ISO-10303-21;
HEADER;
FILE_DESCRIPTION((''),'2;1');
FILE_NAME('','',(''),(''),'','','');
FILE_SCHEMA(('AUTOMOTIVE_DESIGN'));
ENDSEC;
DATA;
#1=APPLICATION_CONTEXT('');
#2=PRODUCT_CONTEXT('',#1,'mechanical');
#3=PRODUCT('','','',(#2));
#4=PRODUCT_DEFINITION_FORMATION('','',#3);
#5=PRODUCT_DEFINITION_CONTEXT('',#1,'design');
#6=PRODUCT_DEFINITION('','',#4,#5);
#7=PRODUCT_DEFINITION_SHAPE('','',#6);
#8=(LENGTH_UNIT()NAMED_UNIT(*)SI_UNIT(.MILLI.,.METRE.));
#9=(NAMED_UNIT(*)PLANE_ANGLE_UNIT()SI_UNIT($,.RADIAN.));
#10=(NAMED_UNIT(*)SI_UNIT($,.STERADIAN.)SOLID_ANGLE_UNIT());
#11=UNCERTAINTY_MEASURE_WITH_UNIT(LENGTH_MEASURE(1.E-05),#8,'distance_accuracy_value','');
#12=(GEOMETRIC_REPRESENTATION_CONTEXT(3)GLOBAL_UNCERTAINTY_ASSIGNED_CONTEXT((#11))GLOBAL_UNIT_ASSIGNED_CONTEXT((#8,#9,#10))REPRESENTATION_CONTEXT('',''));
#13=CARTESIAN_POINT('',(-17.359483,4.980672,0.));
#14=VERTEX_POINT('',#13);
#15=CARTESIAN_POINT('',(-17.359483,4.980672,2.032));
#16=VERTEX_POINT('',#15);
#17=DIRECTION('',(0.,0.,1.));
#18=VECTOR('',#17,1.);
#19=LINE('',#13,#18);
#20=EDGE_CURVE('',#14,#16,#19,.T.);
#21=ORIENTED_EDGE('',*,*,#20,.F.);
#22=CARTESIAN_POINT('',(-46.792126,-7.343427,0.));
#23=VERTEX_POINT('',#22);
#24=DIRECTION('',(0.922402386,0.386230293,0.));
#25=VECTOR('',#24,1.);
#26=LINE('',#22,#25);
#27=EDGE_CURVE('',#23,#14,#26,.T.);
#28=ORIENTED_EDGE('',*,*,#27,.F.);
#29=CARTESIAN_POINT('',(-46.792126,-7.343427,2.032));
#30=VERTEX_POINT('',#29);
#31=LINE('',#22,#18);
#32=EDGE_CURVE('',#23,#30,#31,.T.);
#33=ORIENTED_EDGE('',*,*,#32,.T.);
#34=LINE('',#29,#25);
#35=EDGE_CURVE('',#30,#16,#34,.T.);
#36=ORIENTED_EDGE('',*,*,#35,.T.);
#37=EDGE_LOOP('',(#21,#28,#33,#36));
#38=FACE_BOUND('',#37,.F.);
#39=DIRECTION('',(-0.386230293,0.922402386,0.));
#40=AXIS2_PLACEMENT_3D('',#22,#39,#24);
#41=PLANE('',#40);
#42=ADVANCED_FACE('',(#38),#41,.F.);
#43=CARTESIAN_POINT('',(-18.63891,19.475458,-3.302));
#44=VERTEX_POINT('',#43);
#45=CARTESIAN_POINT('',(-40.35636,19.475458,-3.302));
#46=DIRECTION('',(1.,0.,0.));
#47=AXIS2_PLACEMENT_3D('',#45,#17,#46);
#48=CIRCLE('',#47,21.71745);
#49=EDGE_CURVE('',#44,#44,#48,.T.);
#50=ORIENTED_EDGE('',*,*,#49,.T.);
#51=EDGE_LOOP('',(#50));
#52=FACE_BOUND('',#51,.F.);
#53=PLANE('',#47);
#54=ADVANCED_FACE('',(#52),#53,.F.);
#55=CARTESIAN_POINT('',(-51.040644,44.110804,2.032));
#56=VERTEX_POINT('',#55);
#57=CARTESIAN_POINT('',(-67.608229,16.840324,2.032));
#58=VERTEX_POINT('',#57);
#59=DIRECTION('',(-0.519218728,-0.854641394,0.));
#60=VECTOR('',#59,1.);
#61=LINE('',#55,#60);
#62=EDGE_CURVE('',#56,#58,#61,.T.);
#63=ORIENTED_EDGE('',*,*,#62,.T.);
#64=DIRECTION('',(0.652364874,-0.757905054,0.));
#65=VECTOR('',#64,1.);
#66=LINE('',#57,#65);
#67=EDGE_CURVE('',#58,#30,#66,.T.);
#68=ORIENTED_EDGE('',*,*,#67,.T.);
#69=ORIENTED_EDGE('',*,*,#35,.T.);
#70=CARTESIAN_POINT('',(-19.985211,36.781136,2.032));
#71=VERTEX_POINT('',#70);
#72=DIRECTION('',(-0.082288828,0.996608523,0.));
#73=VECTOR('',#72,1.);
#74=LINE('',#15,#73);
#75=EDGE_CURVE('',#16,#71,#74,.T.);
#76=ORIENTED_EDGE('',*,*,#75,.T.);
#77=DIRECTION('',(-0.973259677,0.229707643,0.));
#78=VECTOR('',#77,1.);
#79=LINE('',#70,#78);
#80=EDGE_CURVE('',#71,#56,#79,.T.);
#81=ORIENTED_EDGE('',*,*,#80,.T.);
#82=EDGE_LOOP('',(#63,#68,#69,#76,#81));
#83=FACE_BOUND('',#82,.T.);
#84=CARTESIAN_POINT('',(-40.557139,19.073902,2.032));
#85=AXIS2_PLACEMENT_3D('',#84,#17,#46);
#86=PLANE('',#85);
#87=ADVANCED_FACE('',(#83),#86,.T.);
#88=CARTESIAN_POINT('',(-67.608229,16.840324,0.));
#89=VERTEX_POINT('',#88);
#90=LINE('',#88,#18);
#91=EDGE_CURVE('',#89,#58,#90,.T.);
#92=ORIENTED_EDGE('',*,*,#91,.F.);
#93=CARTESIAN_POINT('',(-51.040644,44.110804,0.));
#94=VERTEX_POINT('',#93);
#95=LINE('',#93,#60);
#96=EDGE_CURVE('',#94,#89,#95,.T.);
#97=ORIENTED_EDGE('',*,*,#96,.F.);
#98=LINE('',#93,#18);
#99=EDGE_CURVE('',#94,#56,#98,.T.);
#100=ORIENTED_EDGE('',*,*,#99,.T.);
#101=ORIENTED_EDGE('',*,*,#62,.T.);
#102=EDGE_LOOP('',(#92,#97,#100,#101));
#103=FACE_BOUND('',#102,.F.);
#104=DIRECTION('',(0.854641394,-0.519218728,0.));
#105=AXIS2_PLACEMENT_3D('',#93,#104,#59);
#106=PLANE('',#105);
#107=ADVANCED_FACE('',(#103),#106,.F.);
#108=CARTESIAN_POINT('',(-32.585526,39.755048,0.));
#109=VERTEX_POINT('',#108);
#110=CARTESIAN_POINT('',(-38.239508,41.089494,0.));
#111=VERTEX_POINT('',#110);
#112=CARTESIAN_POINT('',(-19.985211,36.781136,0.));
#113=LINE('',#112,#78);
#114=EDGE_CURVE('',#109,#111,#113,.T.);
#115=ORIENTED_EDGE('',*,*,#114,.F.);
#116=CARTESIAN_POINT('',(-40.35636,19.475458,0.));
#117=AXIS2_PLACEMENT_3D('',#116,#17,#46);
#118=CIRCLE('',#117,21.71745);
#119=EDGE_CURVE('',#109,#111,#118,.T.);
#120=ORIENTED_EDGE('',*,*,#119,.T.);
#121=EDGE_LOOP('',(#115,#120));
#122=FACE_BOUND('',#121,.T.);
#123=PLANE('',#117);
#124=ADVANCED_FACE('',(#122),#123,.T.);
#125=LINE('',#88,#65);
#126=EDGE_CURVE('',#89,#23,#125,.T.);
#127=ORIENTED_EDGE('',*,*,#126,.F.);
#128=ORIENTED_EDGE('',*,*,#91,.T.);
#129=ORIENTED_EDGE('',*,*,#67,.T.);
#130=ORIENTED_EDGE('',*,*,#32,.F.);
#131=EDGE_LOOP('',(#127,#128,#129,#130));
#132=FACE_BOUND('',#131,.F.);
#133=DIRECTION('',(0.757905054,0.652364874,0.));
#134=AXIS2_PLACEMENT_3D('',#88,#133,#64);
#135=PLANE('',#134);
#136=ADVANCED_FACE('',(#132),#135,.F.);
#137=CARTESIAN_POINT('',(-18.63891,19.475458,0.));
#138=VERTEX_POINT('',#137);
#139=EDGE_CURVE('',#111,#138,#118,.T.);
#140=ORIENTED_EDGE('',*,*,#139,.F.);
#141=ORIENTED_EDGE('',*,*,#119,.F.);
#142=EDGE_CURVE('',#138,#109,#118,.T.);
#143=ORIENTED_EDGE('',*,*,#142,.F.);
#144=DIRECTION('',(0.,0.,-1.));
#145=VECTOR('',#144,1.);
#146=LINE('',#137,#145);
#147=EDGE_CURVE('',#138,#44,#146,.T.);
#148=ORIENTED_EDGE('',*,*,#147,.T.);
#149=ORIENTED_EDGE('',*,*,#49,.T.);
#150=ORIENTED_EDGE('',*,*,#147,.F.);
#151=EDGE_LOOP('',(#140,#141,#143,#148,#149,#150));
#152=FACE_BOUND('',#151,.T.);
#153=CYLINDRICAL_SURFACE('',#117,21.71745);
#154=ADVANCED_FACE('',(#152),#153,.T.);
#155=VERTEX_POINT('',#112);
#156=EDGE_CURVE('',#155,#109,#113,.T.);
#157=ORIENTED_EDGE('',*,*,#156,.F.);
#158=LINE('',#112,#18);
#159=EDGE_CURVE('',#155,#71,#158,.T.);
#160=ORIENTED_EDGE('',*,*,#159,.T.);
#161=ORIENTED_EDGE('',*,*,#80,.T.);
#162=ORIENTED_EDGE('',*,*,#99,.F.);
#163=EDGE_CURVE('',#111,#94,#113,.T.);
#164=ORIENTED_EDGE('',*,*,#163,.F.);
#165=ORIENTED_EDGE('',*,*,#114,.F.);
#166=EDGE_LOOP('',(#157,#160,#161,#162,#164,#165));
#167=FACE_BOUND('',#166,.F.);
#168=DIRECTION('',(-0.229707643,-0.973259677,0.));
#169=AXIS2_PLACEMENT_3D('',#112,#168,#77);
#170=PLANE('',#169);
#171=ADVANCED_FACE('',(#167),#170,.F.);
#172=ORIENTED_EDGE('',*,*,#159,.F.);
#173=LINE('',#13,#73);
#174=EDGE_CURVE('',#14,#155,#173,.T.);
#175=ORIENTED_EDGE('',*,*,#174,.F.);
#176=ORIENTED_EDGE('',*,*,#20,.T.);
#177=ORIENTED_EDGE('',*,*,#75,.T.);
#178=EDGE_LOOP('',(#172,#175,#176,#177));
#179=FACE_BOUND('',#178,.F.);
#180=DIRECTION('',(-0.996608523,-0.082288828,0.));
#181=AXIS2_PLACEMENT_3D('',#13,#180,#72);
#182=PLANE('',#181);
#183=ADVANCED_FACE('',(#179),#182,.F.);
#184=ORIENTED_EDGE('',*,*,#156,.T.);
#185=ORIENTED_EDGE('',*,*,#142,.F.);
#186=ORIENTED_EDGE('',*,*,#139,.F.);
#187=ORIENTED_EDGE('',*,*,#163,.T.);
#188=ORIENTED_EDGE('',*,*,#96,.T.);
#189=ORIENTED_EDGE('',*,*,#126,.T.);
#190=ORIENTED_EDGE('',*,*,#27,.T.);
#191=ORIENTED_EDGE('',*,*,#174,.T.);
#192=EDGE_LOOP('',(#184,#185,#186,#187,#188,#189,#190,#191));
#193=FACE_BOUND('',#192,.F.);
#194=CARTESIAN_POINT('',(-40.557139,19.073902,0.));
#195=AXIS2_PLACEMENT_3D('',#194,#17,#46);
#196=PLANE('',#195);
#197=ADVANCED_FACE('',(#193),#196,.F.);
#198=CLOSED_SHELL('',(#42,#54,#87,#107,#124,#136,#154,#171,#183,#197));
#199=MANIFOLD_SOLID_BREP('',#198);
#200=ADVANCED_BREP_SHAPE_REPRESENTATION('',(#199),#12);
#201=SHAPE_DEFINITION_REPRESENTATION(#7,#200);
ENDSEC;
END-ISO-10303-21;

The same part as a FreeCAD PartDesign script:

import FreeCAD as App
import Part
import Sketcher
Q = App.Units.Quantity

doc = App.newDocument("Part")
body = doc.addObject("PartDesign::Body", "Body")

# Sketch on XY plane
sketch1 = doc.addObject("Sketcher::SketchObject", "Sketch")
body.addObject(sketch1)
sketch1.AttachmentSupport = (doc.XY_Plane, [""])
sketch1.MapMode = "FlatFace"
sketch1.addGeometry([
    Part.LineSegment(App.Vector(-17, 5, 0), App.Vector(-20, 37, 0)),  # 0
    Part.LineSegment(App.Vector(-20, 37, 0), App.Vector(-51, 44, 0)),  # 1
    Part.LineSegment(App.Vector(-51, 44, 0), App.Vector(-68, 17, 0)),  # 2
    Part.LineSegment(App.Vector(-68, 17, 0), App.Vector(-47, -7, 0)),  # 3
    Part.LineSegment(App.Vector(-47, -7, 0), App.Vector(-17, 5, 0)),  # 4
], False)
sketch1.addConstraint([
    Sketcher.Constraint("Coincident", 0, 2, 1, 1),
    Sketcher.Constraint("Coincident", 1, 2, 2, 1),
    Sketcher.Constraint("Coincident", 2, 2, 3, 1),
    Sketcher.Constraint("Coincident", 3, 2, 4, 1),
    Sketcher.Constraint("Coincident", 4, 2, 0, 1),
    Sketcher.Constraint("Equal", 0, 1),
    Sketcher.Constraint("Equal", 1, 2),
    Sketcher.Constraint("Equal", 2, 3),
    Sketcher.Constraint("Equal", 3, 4),
    Sketcher.Constraint("DistanceY", 3, 2, 4, 2, Q("12.324099 mm")),
    Sketcher.Constraint("Distance", 0, Q("31.908682 mm")),
    Sketcher.Constraint("DistanceX", 0, 2, -1, 1, Q("19.985211 mm")),
    Sketcher.Constraint("DistanceX", 2, 2, -1, 1, Q("67.608229 mm")),
    Sketcher.Constraint("DistanceY", 0, 2, 1, 2, Q("7.329668 mm")),
    Sketcher.Constraint("DistanceY", -1, 1, 0, 2, Q("36.781136 mm")),
])
pad1 = doc.addObject("PartDesign::Pad", "Pad")
body.addObject(pad1)
pad1.Profile = sketch1
pad1.Length = Q("0.08 in")

# Sketch on XY plane
sketch2 = doc.addObject("Sketcher::SketchObject", "Sketch001")
body.addObject(sketch2)
sketch2.AttachmentSupport = (doc.XY_Plane, [""])
sketch2.MapMode = "FlatFace"
sketch2.addGeometry(Part.Circle(App.Vector(-40, 19, 0), App.Vector(0, 0, 1), 22), False)
sketch2.addConstraint([
    Sketcher.Constraint("Diameter", 0, Q("43.4349 mm")),
    Sketcher.Constraint("DistanceX", 0, 3, -1, 1, Q("40.35636 mm")),
    Sketcher.Constraint("DistanceY", -1, 1, 0, 3, Q("19.475458 mm")),
])
pad2 = doc.addObject("PartDesign::Pad", "Pad001")
body.addObject(pad2)
pad2.Profile = sketch2
pad2.Length = Q("0.13 in")
pad2.Reversed = True

doc.recompute()
